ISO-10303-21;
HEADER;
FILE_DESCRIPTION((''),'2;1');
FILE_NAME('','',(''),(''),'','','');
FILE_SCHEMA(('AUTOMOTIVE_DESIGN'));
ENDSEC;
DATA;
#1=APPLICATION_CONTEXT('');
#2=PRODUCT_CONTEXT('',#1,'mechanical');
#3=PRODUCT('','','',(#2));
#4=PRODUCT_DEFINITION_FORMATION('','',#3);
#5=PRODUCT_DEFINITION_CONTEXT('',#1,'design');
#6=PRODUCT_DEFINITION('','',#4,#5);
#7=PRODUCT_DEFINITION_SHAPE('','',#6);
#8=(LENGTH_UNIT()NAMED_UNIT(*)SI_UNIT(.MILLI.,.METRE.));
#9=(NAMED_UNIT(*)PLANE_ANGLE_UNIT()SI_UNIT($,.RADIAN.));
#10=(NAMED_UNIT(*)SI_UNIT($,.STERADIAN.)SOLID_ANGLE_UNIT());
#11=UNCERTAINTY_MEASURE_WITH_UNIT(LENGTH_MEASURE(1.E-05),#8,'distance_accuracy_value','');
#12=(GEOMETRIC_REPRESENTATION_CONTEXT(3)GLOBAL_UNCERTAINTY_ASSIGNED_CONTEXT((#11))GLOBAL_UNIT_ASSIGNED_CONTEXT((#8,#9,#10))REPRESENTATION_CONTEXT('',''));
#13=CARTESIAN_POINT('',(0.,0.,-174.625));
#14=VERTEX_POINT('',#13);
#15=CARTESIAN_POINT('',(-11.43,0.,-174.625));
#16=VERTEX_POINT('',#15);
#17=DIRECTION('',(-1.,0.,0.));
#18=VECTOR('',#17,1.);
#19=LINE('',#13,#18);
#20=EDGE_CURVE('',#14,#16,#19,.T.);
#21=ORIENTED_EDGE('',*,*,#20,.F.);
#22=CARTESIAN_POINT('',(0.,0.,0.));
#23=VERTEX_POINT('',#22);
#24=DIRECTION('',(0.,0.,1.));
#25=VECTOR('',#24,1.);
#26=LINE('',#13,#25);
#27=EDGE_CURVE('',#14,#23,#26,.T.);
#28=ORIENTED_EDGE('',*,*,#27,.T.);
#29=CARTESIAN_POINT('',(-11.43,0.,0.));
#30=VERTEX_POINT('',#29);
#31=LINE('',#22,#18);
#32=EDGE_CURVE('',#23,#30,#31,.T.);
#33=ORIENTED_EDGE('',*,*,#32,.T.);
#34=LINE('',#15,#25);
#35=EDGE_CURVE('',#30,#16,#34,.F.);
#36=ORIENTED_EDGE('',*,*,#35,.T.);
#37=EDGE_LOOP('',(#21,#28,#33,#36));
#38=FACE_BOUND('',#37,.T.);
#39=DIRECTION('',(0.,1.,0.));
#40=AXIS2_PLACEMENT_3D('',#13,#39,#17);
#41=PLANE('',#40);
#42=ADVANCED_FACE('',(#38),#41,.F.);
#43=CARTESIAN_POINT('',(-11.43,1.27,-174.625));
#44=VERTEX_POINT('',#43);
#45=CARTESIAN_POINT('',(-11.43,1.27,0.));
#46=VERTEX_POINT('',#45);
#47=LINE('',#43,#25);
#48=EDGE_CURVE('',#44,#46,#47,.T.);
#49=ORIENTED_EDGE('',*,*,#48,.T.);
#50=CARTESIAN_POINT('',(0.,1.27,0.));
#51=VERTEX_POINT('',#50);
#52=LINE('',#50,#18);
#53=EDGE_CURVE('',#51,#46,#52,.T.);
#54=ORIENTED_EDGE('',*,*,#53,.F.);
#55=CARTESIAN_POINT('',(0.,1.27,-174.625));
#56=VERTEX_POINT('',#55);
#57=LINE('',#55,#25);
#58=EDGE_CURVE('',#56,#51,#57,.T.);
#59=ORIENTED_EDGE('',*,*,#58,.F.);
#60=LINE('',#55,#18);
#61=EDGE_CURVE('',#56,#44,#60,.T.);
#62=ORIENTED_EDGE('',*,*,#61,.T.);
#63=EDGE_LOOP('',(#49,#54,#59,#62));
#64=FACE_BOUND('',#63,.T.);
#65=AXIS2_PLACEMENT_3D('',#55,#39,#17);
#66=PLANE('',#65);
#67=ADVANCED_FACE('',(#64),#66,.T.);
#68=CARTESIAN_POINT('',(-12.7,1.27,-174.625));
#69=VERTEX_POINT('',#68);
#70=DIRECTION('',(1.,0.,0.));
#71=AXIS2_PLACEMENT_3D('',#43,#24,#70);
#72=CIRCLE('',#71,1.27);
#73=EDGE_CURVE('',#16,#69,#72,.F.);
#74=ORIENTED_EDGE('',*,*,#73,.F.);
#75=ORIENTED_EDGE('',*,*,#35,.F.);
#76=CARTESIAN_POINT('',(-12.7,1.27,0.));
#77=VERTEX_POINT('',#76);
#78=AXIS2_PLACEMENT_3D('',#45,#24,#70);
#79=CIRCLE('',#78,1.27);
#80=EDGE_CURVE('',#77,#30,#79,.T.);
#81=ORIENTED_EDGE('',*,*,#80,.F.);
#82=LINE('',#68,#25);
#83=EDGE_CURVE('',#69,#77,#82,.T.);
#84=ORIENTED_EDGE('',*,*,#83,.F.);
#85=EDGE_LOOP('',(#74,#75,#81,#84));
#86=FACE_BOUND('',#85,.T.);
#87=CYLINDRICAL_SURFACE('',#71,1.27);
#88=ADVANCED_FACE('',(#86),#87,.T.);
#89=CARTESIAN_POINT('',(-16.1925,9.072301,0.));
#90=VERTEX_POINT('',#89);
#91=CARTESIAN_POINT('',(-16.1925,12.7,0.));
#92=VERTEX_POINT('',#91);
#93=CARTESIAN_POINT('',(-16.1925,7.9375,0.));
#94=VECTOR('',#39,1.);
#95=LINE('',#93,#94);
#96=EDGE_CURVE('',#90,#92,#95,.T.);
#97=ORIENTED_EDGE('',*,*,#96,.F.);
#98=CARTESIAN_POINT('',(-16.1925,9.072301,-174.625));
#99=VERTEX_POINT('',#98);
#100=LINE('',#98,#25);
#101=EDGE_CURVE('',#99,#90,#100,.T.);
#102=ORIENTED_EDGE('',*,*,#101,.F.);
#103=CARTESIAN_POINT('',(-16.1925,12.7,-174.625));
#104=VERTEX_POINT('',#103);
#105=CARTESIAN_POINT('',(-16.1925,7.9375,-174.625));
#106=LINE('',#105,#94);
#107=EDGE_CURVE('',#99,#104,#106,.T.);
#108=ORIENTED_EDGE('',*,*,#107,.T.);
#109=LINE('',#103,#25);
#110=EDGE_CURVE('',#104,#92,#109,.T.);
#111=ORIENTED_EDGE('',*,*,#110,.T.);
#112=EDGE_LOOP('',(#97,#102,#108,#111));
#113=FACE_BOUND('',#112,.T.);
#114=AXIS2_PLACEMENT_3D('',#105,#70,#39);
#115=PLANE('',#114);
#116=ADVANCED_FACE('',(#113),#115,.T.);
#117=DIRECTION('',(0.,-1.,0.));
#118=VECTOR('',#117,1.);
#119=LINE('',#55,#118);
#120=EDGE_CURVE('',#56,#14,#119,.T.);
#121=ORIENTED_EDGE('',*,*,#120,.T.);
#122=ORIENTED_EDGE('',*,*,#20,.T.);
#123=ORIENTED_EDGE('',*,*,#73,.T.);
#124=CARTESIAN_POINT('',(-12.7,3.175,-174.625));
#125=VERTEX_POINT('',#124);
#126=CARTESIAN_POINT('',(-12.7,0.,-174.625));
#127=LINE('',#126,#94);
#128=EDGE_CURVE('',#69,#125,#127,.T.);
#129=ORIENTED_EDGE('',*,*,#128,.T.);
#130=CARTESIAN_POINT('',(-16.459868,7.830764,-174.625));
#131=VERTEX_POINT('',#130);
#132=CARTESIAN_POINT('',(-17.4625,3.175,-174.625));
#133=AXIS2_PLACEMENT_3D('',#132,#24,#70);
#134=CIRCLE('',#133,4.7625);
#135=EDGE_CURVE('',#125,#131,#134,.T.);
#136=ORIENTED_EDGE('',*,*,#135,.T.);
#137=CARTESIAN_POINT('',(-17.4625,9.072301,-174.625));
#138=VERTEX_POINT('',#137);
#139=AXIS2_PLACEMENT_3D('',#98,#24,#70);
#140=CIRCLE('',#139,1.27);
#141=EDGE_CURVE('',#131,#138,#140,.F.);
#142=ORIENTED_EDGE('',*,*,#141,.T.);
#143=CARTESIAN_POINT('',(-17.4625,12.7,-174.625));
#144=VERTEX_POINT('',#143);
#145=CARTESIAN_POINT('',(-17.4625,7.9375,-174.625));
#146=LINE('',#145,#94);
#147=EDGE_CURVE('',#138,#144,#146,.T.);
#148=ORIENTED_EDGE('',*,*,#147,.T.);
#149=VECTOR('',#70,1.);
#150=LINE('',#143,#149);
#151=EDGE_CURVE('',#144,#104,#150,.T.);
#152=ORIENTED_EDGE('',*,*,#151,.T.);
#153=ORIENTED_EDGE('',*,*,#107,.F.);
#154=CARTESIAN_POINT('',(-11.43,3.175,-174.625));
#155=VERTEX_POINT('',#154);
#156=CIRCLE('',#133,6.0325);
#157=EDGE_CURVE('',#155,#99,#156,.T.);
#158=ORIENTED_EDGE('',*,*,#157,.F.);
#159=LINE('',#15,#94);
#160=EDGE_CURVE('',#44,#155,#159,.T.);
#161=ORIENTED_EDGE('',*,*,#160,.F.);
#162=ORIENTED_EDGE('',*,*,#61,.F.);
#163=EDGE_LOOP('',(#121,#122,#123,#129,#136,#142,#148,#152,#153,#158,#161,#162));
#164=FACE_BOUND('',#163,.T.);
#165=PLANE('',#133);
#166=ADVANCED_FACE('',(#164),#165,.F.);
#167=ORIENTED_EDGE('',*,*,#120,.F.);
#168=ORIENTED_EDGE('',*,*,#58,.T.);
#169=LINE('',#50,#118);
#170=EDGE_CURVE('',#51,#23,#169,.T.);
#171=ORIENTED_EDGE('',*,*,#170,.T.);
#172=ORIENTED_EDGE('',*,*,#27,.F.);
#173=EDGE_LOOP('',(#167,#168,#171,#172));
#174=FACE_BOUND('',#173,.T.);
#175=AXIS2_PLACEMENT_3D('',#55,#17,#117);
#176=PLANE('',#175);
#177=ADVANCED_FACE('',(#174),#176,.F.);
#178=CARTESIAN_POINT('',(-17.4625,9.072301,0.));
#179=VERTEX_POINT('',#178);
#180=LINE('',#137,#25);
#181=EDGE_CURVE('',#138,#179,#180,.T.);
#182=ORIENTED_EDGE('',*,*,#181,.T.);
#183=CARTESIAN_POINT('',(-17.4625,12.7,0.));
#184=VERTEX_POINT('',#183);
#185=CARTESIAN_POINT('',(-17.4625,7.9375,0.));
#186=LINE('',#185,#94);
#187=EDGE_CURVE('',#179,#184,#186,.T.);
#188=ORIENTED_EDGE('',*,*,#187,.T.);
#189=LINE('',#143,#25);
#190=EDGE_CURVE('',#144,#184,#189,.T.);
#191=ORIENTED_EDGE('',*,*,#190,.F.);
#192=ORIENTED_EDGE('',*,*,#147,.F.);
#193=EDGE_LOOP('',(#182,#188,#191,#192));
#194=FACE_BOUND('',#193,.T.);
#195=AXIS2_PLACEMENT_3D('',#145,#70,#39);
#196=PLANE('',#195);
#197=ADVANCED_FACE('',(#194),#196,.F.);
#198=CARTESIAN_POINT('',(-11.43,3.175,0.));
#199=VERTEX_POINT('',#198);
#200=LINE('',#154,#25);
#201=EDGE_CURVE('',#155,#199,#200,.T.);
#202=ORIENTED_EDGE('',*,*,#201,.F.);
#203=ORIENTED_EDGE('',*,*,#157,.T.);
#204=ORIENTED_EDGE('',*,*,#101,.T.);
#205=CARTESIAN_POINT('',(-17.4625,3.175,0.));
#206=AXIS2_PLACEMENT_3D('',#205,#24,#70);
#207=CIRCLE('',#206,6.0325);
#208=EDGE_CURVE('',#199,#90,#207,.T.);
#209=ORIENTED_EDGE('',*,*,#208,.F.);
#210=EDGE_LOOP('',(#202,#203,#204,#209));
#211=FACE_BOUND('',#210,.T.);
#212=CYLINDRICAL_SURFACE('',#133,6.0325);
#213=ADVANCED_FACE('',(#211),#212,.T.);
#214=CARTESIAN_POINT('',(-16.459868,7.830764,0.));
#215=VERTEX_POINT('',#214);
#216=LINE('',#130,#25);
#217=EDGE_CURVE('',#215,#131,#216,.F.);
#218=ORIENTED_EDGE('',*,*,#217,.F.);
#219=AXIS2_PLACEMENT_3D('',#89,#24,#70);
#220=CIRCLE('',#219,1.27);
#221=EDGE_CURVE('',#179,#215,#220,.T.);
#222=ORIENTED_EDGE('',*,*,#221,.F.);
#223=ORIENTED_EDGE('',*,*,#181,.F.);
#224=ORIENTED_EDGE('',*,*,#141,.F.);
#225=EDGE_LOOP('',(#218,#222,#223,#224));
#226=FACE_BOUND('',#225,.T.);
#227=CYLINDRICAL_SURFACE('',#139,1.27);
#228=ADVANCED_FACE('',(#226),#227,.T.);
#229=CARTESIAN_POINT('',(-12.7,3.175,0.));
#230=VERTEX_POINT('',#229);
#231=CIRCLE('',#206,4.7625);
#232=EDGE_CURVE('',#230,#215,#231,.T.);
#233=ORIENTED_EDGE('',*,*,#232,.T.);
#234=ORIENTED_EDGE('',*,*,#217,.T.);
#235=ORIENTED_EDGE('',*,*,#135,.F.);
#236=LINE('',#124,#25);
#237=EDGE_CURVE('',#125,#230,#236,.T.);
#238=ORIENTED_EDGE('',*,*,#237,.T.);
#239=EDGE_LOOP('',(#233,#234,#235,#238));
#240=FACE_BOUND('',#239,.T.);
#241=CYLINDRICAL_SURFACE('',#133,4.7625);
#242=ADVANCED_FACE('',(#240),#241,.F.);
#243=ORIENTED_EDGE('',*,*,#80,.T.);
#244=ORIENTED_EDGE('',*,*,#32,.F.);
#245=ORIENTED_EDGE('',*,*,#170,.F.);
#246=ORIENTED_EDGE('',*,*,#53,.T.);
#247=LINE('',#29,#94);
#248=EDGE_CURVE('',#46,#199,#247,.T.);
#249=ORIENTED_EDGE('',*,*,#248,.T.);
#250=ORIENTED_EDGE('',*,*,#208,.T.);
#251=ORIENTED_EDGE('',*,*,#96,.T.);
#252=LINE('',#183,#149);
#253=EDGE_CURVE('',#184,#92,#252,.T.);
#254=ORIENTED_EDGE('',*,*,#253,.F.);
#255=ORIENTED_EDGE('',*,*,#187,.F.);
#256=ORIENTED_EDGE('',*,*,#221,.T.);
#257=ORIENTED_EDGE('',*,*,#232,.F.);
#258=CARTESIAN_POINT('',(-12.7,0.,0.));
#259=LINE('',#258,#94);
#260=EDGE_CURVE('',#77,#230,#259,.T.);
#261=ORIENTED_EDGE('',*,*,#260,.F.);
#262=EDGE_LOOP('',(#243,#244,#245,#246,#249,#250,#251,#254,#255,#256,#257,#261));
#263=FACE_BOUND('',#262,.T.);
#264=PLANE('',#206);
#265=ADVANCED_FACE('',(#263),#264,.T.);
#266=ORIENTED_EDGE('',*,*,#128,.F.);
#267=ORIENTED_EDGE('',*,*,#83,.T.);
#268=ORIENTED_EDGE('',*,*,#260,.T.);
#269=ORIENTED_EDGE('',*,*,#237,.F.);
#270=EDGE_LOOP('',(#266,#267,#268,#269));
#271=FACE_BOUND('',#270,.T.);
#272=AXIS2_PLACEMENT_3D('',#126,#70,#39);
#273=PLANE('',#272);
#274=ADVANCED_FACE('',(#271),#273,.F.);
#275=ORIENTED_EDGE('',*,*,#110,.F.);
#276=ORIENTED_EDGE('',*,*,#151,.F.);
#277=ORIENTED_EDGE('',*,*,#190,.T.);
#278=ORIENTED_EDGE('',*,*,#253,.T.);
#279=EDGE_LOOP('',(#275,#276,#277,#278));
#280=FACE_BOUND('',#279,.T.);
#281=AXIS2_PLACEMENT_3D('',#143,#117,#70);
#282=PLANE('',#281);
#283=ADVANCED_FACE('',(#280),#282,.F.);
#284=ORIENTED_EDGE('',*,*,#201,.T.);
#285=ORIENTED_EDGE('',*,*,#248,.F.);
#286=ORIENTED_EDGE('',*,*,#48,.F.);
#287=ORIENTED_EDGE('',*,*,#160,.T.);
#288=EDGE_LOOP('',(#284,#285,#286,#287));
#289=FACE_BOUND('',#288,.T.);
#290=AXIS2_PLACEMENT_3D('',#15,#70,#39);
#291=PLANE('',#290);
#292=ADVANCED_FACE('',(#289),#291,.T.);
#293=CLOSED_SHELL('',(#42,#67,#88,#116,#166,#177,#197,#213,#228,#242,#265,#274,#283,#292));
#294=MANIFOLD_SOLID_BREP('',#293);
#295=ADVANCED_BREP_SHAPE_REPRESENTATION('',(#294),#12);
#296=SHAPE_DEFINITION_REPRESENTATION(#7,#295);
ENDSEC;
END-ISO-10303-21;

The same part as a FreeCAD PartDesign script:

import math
import FreeCAD as App
import Part
import Sketcher
from FreeCAD import Vector
Q = App.Units.Quantity


def edges_at(feature, points):
    """Names of the edges that pass closest to the given points."""
    edges = feature.Shape.Edges
    near = lambda p: min(range(len(edges)), key=lambda i: edges[i].distToShape(Part.Vertex(*p))[0])
    return sorted({f"Edge{near(p) + 1}" for p in points})

doc = App.newDocument("Part")
params = doc.addObject("Spreadsheet::Sheet", "Params")
for row, (alias, value) in enumerate([
    ("sketch1_width", "0.5 in"),
    ("sketch1_radius", "0.1875 in"),
    ("sketch1_width2", "0.45 in"),
    ("sketch1_width3", "0.05 in"),
    ("sketch1_height", "0.075 in"),
    ("pad1_length", "6.875 in"),
    ("fillet_radius", "0.05 in"),
], start=1):
    params.set(f"A{row}", alias)
    params.set(f"B{row}", "=" + value)
    params.setAlias(f"B{row}", alias)

body = doc.addObject("PartDesign::Body", "Body")

# Sketch on XY plane
sketch1 = body.newObject("Sketcher::SketchObject", "Sketch")
sketch1.AttachmentSupport = (doc.getObject("XY_Plane"), [""])
sketch1.MapMode = "FlatFace"
sketch1.addGeometry([
    Part.LineSegment(Vector(-12.7, 0, 0), Vector(0, 0, 0)),  # 0
    Part.LineSegment(Vector(0, 0, 0), Vector(0, 1.3, 0)),  # 1
    Part.LineSegment(Vector(0, 1.3, 0), Vector(-11.4, 1.3, 0)),  # 2
    Part.LineSegment(Vector(-11.4, 1.3, 0), Vector(-11.4, 3.2, 0)),  # 3
    Part.ArcOfCircle(Part.Circle(Vector(-17.5, 3.2, 0), Vector(0, 0, 1), 6), math.radians(0), math.radians(78)),  # 4
    Part.LineSegment(Vector(-16.2, 9.1, 0), Vector(-16.2, 12.7, 0)),  # 5
    Part.LineSegment(Vector(-16.2, 12.7, 0), Vector(-17.5, 12.7, 0)),  # 6
    Part.LineSegment(Vector(-17.5, 12.7, 0), Vector(-17.5, 7.9, 0)),  # 7
    Part.ArcOfCircle(Part.Circle(Vector(-17.5, 3.2, 0), Vector(0, 0, 1), 4.8), math.radians(0), math.radians(90)),  # 8
    Part.LineSegment(Vector(-12.7, 3.2, 0), Vector(-12.7, 0, 0)),  # 9
], False)
sketch1.addConstraint([
    Sketcher.Constraint("Coincident", 0, 2, 1, 1),
    Sketcher.Constraint("Coincident", 1, 2, 2, 1),
    Sketcher.Constraint("Coincident", 2, 2, 3, 1),
    Sketcher.Constraint("Tangent", 3, 2, 4, 1),
    Sketcher.Constraint("Coincident", 4, 2, 5, 1),
    Sketcher.Constraint("Coincident", 5, 2, 6, 1),
    Sketcher.Constraint("Coincident", 6, 2, 7, 1),
    Sketcher.Constraint("Coincident", 7, 2, 8, 2),
    Sketcher.Constraint("Tangent", 8, 1, 9, 1),
    Sketcher.Constraint("Coincident", 9, 2, 0, 1),
    Sketcher.Constraint("Horizontal", 0),
    Sketcher.Constraint("Vertical", 1),
    Sketcher.Constraint("Horizontal", 2),
    Sketcher.Constraint("Vertical", 3),
    Sketcher.Constraint("Vertical", 5),
    Sketcher.Constraint("Horizontal", 6),
    Sketcher.Constraint("Vertical", 7),
    Sketcher.Constraint("Vertical", 9),
    Sketcher.Constraint("Coincident", 0, 2, -1, 1),
    Sketcher.Constraint("Coincident", 8, 3, 4, 3),
    Sketcher.Constraint("Vertical", 8, 3, 6, 2),
    Sketcher.Constraint("Equal", 6, 1),
    Sketcher.Constraint("DistanceX", 0, 1, 0, 2, Q("0.5 in")),
    Sketcher.Constraint("Radius", 8, Q("0.1875 in")),
    Sketcher.Constraint("DistanceX", 2, 2, 2, 1, Q("0.45 in")),
    Sketcher.Constraint("DistanceX", 6, 2, 6, 1, Q("0.05 in")),
    Sketcher.Constraint("DistanceY", -1, 1, 5, 2, Q("0.5 in")),
    Sketcher.Constraint("DistanceY", 3, 1, 3, 2, Q("0.075 in")),
])
sketch1.setExpression("Constraints[22]", "Params.sketch1_width")
sketch1.setExpression("Constraints[23]", "Params.sketch1_radius")
sketch1.setExpression("Constraints[24]", "Params.sketch1_width2")
sketch1.setExpression("Constraints[25]", "Params.sketch1_width3")
sketch1.setExpression("Constraints[27]", "Params.sketch1_height")
pad1 = body.newObject("PartDesign::Pad", "Pad")
pad1.Profile = sketch1
pad1.setExpression("Length", "Params.pad1_length")
pad1.Reversed = True
doc.recompute()

fillet = body.newObject("PartDesign::Fillet", "Fillet")
fillet.Base = (pad1, edges_at(pad1, [(-12.7, 0, -87.312), (-17.462, 7.938, -87.312)]))
fillet.setExpression("Radius", "Params.fillet_radius")

doc.recompute()
